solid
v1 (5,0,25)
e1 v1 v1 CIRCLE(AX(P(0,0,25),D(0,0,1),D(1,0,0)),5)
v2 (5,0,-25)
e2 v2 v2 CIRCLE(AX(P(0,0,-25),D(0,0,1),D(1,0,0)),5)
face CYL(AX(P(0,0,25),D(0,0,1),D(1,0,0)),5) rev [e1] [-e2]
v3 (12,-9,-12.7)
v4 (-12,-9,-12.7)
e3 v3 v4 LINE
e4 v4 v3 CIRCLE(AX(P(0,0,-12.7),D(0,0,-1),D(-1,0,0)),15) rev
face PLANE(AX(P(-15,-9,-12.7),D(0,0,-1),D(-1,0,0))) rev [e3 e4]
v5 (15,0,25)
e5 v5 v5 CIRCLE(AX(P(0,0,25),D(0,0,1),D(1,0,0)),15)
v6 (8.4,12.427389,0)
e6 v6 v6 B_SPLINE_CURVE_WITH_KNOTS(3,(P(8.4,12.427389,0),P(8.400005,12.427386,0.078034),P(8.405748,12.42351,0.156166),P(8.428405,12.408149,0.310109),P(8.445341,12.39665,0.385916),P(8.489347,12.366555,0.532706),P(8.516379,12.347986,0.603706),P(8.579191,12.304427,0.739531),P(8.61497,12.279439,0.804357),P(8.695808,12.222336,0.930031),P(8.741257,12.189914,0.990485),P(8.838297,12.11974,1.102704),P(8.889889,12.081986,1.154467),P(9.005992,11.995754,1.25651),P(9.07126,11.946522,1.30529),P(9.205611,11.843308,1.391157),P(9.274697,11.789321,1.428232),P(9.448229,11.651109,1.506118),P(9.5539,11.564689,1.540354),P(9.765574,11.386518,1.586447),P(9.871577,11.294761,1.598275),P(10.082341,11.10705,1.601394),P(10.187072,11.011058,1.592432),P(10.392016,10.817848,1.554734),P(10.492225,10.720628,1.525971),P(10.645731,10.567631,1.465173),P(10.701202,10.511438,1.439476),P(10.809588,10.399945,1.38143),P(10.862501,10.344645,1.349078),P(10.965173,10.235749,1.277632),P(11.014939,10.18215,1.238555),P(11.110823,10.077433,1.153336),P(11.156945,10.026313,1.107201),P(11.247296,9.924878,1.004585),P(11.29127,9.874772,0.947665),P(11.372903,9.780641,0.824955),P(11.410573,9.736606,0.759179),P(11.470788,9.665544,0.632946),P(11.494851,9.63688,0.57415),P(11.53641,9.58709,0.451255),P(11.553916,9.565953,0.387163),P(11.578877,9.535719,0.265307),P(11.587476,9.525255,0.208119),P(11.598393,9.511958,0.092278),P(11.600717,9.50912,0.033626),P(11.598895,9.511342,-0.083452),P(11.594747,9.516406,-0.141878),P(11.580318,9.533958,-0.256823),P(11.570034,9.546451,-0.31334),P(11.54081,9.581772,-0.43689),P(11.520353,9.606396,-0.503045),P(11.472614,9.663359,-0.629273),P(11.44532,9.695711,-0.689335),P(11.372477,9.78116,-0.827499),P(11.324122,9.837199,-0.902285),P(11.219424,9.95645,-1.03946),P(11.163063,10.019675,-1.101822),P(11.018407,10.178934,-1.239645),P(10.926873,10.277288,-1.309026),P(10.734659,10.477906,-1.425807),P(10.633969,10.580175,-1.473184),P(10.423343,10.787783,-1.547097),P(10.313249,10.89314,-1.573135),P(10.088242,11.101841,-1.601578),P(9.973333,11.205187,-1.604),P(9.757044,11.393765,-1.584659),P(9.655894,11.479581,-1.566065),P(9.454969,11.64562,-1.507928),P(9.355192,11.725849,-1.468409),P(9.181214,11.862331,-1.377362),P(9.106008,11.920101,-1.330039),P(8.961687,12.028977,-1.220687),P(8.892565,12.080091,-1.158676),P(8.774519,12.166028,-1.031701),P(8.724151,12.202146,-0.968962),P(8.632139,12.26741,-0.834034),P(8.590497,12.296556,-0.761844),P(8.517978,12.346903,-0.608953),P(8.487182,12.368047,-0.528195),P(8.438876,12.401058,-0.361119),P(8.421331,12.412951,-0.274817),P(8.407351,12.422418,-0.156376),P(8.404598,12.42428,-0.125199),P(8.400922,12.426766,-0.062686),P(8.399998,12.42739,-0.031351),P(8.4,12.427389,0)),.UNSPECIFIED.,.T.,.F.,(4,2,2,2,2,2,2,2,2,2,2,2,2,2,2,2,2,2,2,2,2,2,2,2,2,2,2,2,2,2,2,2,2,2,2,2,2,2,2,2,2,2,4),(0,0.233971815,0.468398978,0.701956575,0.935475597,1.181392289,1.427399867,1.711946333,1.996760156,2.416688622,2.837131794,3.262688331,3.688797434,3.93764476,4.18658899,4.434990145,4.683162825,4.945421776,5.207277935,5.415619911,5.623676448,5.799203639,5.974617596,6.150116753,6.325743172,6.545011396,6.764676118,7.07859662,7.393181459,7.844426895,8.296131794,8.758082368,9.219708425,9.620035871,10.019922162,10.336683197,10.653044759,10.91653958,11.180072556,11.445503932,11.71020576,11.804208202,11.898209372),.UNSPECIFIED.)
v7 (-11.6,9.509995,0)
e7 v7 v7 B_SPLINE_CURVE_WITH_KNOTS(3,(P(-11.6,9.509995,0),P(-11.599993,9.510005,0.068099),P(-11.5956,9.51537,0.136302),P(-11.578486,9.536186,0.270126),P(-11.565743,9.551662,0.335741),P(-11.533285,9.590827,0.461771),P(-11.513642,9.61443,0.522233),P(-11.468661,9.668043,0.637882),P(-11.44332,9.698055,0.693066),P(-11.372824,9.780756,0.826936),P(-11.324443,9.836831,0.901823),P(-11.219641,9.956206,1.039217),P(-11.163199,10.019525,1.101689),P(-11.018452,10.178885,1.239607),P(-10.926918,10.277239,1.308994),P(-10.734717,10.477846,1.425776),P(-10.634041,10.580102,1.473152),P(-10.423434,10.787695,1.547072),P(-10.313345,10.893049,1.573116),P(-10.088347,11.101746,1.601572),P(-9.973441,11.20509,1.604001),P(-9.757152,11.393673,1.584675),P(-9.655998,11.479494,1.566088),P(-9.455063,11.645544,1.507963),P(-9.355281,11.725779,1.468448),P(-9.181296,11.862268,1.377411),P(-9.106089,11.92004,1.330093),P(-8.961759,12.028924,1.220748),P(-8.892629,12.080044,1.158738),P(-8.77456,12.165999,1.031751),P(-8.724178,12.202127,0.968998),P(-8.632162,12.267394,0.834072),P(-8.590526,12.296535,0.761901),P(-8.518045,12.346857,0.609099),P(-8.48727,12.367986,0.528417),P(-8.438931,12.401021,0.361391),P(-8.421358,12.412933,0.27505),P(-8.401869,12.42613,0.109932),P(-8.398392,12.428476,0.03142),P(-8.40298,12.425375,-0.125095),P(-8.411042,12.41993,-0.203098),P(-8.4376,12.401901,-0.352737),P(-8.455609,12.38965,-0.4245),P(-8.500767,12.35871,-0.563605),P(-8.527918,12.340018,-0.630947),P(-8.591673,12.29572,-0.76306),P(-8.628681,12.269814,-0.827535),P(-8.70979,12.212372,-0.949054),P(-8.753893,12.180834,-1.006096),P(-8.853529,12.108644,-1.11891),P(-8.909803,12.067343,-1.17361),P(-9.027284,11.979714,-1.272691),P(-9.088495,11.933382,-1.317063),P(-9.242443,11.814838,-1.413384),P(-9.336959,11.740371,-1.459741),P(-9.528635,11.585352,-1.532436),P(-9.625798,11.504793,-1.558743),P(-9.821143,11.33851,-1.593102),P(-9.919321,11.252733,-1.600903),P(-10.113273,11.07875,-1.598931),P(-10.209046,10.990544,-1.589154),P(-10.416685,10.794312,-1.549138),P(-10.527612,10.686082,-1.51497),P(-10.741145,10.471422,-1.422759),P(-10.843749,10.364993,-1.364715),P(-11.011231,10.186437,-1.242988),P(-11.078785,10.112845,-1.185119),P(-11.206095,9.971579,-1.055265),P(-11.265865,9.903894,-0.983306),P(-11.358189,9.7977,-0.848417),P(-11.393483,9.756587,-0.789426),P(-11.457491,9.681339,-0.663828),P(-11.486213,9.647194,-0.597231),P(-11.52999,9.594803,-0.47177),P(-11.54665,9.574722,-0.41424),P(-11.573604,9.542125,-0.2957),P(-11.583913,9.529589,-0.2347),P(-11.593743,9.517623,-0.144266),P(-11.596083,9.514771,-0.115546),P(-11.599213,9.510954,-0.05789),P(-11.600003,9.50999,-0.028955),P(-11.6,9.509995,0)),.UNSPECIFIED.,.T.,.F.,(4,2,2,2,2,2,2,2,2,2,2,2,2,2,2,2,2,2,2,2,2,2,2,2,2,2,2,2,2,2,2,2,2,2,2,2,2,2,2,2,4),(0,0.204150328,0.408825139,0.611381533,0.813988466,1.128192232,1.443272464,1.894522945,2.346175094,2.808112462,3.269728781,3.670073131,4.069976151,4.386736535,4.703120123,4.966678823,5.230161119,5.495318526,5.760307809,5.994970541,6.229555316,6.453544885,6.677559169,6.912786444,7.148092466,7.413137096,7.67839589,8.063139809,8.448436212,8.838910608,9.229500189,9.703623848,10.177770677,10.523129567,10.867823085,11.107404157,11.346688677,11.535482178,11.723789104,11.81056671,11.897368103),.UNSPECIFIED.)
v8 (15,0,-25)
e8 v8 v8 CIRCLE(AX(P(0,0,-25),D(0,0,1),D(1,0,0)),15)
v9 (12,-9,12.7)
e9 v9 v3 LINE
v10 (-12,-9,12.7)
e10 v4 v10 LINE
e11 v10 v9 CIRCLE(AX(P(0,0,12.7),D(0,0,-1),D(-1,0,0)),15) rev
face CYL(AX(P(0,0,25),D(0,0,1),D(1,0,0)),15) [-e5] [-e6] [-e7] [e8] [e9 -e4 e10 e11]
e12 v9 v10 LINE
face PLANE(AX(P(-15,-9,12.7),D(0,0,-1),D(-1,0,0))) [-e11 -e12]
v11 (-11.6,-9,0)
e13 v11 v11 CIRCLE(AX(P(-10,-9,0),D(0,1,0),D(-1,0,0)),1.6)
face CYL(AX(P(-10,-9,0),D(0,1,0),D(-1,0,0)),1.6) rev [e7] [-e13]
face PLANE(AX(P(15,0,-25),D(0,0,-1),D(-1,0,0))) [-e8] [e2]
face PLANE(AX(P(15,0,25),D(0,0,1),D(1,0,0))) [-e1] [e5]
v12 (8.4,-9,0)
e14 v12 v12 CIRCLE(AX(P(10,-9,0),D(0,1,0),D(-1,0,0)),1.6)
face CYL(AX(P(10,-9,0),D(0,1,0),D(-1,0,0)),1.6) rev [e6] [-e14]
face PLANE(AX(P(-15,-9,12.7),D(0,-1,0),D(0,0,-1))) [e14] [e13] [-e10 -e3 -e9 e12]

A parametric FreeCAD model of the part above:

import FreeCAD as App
import Part
import Sketcher

V = App.Vector

doc = App.newDocument("Part")
body = doc.addObject("PartDesign::Body", "Body")

# Sketch on XZ plane
sketch1 = body.newObject("Sketcher::SketchObject", "Sketch")
sketch1.AttachmentSupport = (doc.getObject("XZ_Plane"), [""])
sketch1.MapMode = "FlatFace"
sketch1.addGeometry(Part.LineSegment(V(5, -25, 0), V(5, 25, 0)), False)
sketch1.addGeometry(Part.LineSegment(V(5, 25, 0), V(15, 25, 0)), False)
sketch1.addGeometry(Part.LineSegment(V(15, 25, 0), V(15, -25, 0)), False)
sketch1.addGeometry(Part.LineSegment(V(15, -25, 0), V(5, -25, 0)), False)
sketch1.addConstraint(Sketcher.Constraint("Coincident", 0, 2, 1, 1))
sketch1.addConstraint(Sketcher.Constraint("Coincident", 1, 2, 2, 1))
sketch1.addConstraint(Sketcher.Constraint("Coincident", 2, 2, 3, 1))
sketch1.addConstraint(Sketcher.Constraint("Coincident", 3, 2, 0, 1))
sketch1.addConstraint(Sketcher.Constraint("Vertical", 0))
sketch1.addConstraint(Sketcher.Constraint("Horizontal", 1))
sketch1.addConstraint(Sketcher.Constraint("Vertical", 2))
sketch1.addConstraint(Sketcher.Constraint("Horizontal", 3))
sketch1.addConstraint(Sketcher.Constraint("DistanceX", 1, 1, 1, 2, 10.0))
sketch1.addConstraint(Sketcher.Constraint("DistanceY", 0, 1, 0, 2, 50.0))
sketch1.addConstraint(Sketcher.Constraint("DistanceX", -1, 1, 0, 2, 5.0))
sketch1.addConstraint(Sketcher.Constraint("DistanceY", -1, 1, 0, 2, 25.0))
revolution = body.newObject("PartDesign::Revolution", "Revolution")
revolution.Profile = sketch1
revolution.ReferenceAxis = (sketch1, ["V_Axis"])
revolution.Angle = 360

# Sketch on XY plane
sketch2 = body.newObject("Sketcher::SketchObject", "Sketch001")
sketch2.AttachmentSupport = (doc.getObject("XY_Plane"), [""])
sketch2.MapMode = "FlatFace"
sketch2.addGeometry(Part.LineSegment(V(-15, -9, 0), V(-15, -15, 0)), False)
sketch2.addGeometry(Part.LineSegment(V(-15, -15, 0), V(15, -15, 0)), False)
sketch2.addGeometry(Part.LineSegment(V(15, -15, 0), V(15, -9, 0)), False)
sketch2.addGeometry(Part.LineSegment(V(15, -9, 0), V(-15, -9, 0)), False)
sketch2.addConstraint(Sketcher.Constraint("Coincident", 0, 2, 1, 1))
sketch2.addConstraint(Sketcher.Constraint("Coincident", 1, 2, 2, 1))
sketch2.addConstraint(Sketcher.Constraint("Coincident", 2, 2, 3, 1))
sketch2.addConstraint(Sketcher.Constraint("Coincident", 3, 2, 0, 1))
sketch2.addConstraint(Sketcher.Constraint("Vertical", 0))
sketch2.addConstraint(Sketcher.Constraint("Horizontal", 1))
sketch2.addConstraint(Sketcher.Constraint("Vertical", 2))
sketch2.addConstraint(Sketcher.Constraint("Horizontal", 3))
sketch2.addConstraint(Sketcher.Constraint("DistanceX", 1, 1, 1, 2, 30.0))
sketch2.addConstraint(Sketcher.Constraint("DistanceY", 0, 2, 0, 1, 6.0))
sketch2.addConstraint(Sketcher.Constraint("DistanceX", 0, 2, -1, 1, 15.0))
sketch2.addConstraint(Sketcher.Constraint("DistanceY", 0, 2, -1, 1, 15.0))
pocket1 = body.newObject("PartDesign::Pocket", "Pocket")
pocket1.Profile = sketch2
pocket1.Type = "TwoLengths"
pocket1.Length = 12.7
pocket1.Length2 = 12.7
pocket1.Reversed = True

# Sketch on XY plane
sketch3 = body.newObject("Sketcher::SketchObject", "Sketch002")
sketch3.AttachmentSupport = (doc.getObject("XY_Plane"), [""])
sketch3.MapMode = "FlatFace"
sketch3.addGeometry(Part.LineSegment(V(8.4, 12.427389, 0), V(8.4, -9, 0)), False)
sketch3.addGeometry(Part.LineSegment(V(8.4, -9, 0), V(10, -9, 0)), False)
sketch3.addGeometry(Part.LineSegment(V(10, -9, 0), V(10, 12.427389, 0)), False)
sketch3.addGeometry(Part.LineSegment(V(10, 12.427389, 0), V(8.4, 12.427389, 0)), False)
sketch3.addGeometry(Part.LineSegment(V(10, 12.427389, 0), V(10, -9, 0)), True)  # axis
sketch3.addConstraint(Sketcher.Constraint("Coincident", 0, 2, 1, 1))
sketch3.addConstraint(Sketcher.Constraint("Coincident", 1, 2, 2, 1))
sketch3.addConstraint(Sketcher.Constraint("Coincident", 2, 2, 3, 1))
sketch3.addConstraint(Sketcher.Constraint("Coincident", 3, 2, 0, 1))
sketch3.addConstraint(Sketcher.Constraint("Vertical", 0))
sketch3.addConstraint(Sketcher.Constraint("Horizontal", 1))
sketch3.addConstraint(Sketcher.Constraint("Vertical", 2))
sketch3.addConstraint(Sketcher.Constraint("Horizontal", 3))
sketch3.addConstraint(Sketcher.Constraint("Vertical", 4))
sketch3.addConstraint(Sketcher.Constraint("Coincident", 4, 1, 2, 2))
sketch3.addConstraint(Sketcher.Constraint("Horizontal", 0, 2, 4, 2))
sketch3.addConstraint(Sketcher.Constraint("DistanceX", 1, 1, 1, 2, 1.6))
sketch3.addConstraint(Sketcher.Constraint("DistanceY", 0, 2, -1, 1, 9.0))
sketch3.addConstraint(Sketcher.Constraint("DistanceX", -1, 1, 1, 2, 10.0))
sketch3.addConstraint(Sketcher.Constraint("DistanceY", 0, 2, 0, 1, 21.427389))
groove = body.newObject("PartDesign::Groove", "Groove")
groove.Profile = sketch3
groove.ReferenceAxis = (sketch3, ["Axis0"])
groove.Angle = 360

# Sketch on XY plane
sketch4 = body.newObject("Sketcher::SketchObject", "Sketch003")
sketch4.AttachmentSupport = (doc.getObject("XY_Plane"), [""])
sketch4.MapMode = "FlatFace"
sketch4.addGeometry(Part.LineSegment(V(-10, 12.427389, 0), V(-10, -9, 0)), False)
sketch4.addGeometry(Part.LineSegment(V(-10, -9, 0), V(-8.4, -9, 0)), False)
sketch4.addGeometry(Part.LineSegment(V(-8.4, -9, 0), V(-8.4, 12.427389, 0)), False)
sketch4.addGeometry(Part.LineSegment(V(-8.4, 12.427389, 0), V(-10, 12.427389, 0)), False)
sketch4.addGeometry(Part.LineSegment(V(-10, 12.427389, 0), V(-10, -9, 0)), True)  # axis
sketch4.addConstraint(Sketcher.Constraint("Coincident", 0, 2, 1, 1))
sketch4.addConstraint(Sketcher.Constraint("Coincident", 1, 2, 2, 1))
sketch4.addConstraint(Sketcher.Constraint("Coincident", 2, 2, 3, 1))
sketch4.addConstraint(Sketcher.Constraint("Coincident", 3, 2, 0, 1))
sketch4.addConstraint(Sketcher.Constraint("Vertical", 0))
sketch4.addConstraint(Sketcher.Constraint("Horizontal", 1))
sketch4.addConstraint(Sketcher.Constraint("Vertical", 2))
sketch4.addConstraint(Sketcher.Constraint("Horizontal", 3))
sketch4.addConstraint(Sketcher.Constraint("Vertical", 4))
sketch4.addConstraint(Sketcher.Constraint("Coincident", 4, 1, 3, 2))
sketch4.addConstraint(Sketcher.Constraint("Horizontal", 1, 2, 4, 2))
sketch4.addConstraint(Sketcher.Constraint("DistanceX", 1, 1, 1, 2, 1.6))
sketch4.addConstraint(Sketcher.Constraint("DistanceX", 0, 2, -1, 1, 10.0))
sketch4.addConstraint(Sketcher.Constraint("DistanceY", 0, 2, -1, 1, 9.0))
sketch4.addConstraint(Sketcher.Constraint("DistanceY", 0, 2, 0, 1, 21.427389))
groove2 = body.newObject("PartDesign::Groove", "Groove001")
groove2.Profile = sketch4
groove2.ReferenceAxis = (sketch4, ["Axis0"])
groove2.Angle = 360

doc.recompute()
